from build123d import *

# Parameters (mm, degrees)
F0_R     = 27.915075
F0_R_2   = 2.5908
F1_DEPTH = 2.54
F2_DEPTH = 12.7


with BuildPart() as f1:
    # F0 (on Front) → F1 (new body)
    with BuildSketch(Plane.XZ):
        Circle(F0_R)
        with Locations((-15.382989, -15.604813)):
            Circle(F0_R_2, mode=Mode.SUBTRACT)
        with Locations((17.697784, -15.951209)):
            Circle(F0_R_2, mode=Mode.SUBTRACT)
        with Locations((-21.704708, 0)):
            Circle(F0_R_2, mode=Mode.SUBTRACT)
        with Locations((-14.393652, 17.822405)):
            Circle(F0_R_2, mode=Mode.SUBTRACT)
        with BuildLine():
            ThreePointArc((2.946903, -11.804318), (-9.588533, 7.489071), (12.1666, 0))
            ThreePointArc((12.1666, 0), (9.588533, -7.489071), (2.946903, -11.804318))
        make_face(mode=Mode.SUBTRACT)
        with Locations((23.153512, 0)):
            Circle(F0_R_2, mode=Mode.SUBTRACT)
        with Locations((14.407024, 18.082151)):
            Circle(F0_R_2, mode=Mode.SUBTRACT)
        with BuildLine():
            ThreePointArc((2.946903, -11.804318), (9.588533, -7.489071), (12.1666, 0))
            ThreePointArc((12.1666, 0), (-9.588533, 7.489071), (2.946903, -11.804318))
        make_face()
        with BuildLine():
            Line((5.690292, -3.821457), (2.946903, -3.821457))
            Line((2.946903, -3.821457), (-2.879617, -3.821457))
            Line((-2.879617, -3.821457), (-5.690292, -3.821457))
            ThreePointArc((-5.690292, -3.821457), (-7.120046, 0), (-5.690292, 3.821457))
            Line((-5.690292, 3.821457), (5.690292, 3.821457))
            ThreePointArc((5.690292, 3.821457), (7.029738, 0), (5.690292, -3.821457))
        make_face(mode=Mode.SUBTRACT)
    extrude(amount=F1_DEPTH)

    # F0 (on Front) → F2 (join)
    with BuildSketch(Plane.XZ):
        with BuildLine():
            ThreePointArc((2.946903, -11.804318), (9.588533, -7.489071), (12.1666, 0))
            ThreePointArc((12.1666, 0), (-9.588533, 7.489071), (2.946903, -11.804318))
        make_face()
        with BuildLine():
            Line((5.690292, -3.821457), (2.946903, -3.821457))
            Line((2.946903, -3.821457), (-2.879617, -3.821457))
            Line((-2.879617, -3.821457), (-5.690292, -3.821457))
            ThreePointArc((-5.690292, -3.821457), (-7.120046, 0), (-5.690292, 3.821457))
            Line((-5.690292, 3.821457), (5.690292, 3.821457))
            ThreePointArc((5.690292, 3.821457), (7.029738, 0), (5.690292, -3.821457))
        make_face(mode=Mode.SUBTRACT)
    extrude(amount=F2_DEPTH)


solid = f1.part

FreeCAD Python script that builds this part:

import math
import FreeCAD as App
import Part
import Sketcher
Q = App.Units.Quantity

doc = App.newDocument("Part")
body = doc.addObject("PartDesign::Body", "Body")

# Sketch on XZ plane
sketch1 = doc.addObject("Sketcher::SketchObject", "Sketch")
body.addObject(sketch1)
sketch1.AttachmentSupport = (doc.XZ_Plane, [""])
sketch1.MapMode = "FlatFace"
sketch1.addGeometry(Part.Circle(App.Vector(0, 0, 0), App.Vector(0, 0, 1), 27.9), False)
sketch1.addGeometry(Part.Circle(App.Vector(-15.4, -15.6, 0), App.Vector(0, 0, 1), 2.6), False)
sketch1.addGeometry(Part.Circle(App.Vector(-21.7, 0, 0), App.Vector(0, 0, 1), 2.6), False)
sketch1.addGeometry(Part.ArcOfCircle(Part.Circle(App.Vector(0.9, 0, 0), App.Vector(0, 0, 1), 6.1), math.radians(-39), math.radians(39)), False)
sketch1.addGeometry(Part.LineSegment(App.Vector(5.7, -3.8, 0), App.Vector(-5.7, -3.8, 0)), False)
sketch1.addGeometry(Part.ArcOfCircle(Part.Circle(App.Vector(-1.3, 0, 0), App.Vector(0, 0, 1), 5.8), math.radians(139), math.radians(221)), False)
sketch1.addGeometry(Part.LineSegment(App.Vector(-5.7, 3.8, 0), App.Vector(5.7, 3.8, 0)), False)
sketch1.addGeometry(Part.Circle(App.Vector(17.7, -16, 0), App.Vector(0, 0, 1), 2.6), False)
sketch1.addGeometry(Part.Circle(App.Vector(23.2, 0, 0), App.Vector(0, 0, 1), 2.6), False)
sketch1.addGeometry(Part.Circle(App.Vector(-14.4, 17.8, 0), App.Vector(0, 0, 1), 2.6), False)
sketch1.addGeometry(Part.Circle(App.Vector(14.4, 18.1, 0), App.Vector(0, 0, 1), 2.6), False)
sketch1.addConstraint(Sketcher.Constraint("Coincident", 3, 1, 4, 1))
sketch1.addConstraint(Sketcher.Constraint("Coincident", 4, 2, 5, 2))
sketch1.addConstraint(Sketcher.Constraint("Coincident", 5, 1, 6, 1))
sketch1.addConstraint(Sketcher.Constraint("Coincident", 6, 2, 3, 2))
sketch1.addConstraint(Sketcher.Constraint("Horizontal", 4))
sketch1.addConstraint(Sketcher.Constraint("Horizontal", 6))
sketch1.addConstraint(Sketcher.Constraint("Coincident", 0, 3, -1, 1))
sketch1.addConstraint(Sketcher.Constraint("Equal", 1, 2))
sketch1.addConstraint(Sketcher.Constraint("Equal", 2, 7))
sketch1.addConstraint(Sketcher.Constraint("Equal", 7, 8))
sketch1.addConstraint(Sketcher.Constraint("Equal", 8, 9))
sketch1.addConstraint(Sketcher.Constraint("Equal", 9, 10))
sketch1.addConstraint(Sketcher.Constraint("Symmetric", 3, 1, 5, 1, -1, 1))
sketch1.addConstraint(Sketcher.Constraint("PointOnObject", 2, 3, -1))
sketch1.addConstraint(Sketcher.Constraint("PointOnObject", 3, 3, -1))
sketch1.addConstraint(Sketcher.Constraint("PointOnObject", 5, 3, -1))
sketch1.addConstraint(Sketcher.Constraint("PointOnObject", 8, 3, -1))
sketch1.addConstraint(Sketcher.Constraint("Diameter", 1, Q("0.204 in")))
sketch1.addConstraint(Sketcher.Constraint("Diameter", 0, Q("55.83015 mm")))
sketch1.addConstraint(Sketcher.Constraint("Radius", 3, Q("6.121056 mm")))
sketch1.addConstraint(Sketcher.Constraint("Radius", 5, Q("5.821886 mm")))
sketch1.addConstraint(Sketcher.Constraint("DistanceX", 1, 3, 8, 3, Q("38.536501 mm")))
sketch1.addConstraint(Sketcher.Constraint("DistanceX", 4, 2, 4, 1, Q("11.380584 mm")))
sketch1.addConstraint(Sketcher.Constraint("DistanceX", 1, 3, -1, 1, Q("15.382989 mm")))
sketch1.addConstraint(Sketcher.Constraint("DistanceX", 2, 3, -1, 1, Q("21.704708 mm")))
sketch1.addConstraint(Sketcher.Constraint("DistanceX", -1, 1, 3, 3, Q("0.908682 mm")))
sketch1.addConstraint(Sketcher.Constraint("DistanceY", 7, 3, -1, 1, Q("15.951209 mm")))
sketch1.addConstraint(Sketcher.Constraint("DistanceY", -1, 1, 10, 3, Q("18.082151 mm")))
sketch1.addConstraint(Sketcher.Constraint("DistanceX", 2, 3, 7, 3, Q("39.402492 mm")))
sketch1.addConstraint(Sketcher.Constraint("DistanceY", 1, 3, -1, 1, Q("15.604813 mm")))
sketch1.addConstraint(Sketcher.Constraint("DistanceX", 9, 3, -1, 1, Q("14.393652 mm")))
sketch1.addConstraint(Sketcher.Constraint("DistanceY", -1, 1, 9, 3, Q("17.822405 mm")))
sketch1.addConstraint(Sketcher.Constraint("DistanceX", -1, 1, 10, 3, Q("14.407024 mm")))
pad1 = doc.addObject("PartDesign::Pad", "Pad")
body.addObject(pad1)
pad1.Profile = sketch1
pad1.Length = Q("0.1 in")

# Sketch on XZ plane
sketch2 = doc.addObject("Sketcher::SketchObject", "Sketch001")
body.addObject(sketch2)
sketch2.AttachmentSupport = (doc.XZ_Plane, [""])
sketch2.MapMode = "FlatFace"
sketch2.addGeometry(Part.ArcOfCircle(Part.Circle(App.Vector(0, 0, 0), App.Vector(0, 0, 1), 12), math.radians(-76), math.radians(0)), False)
sketch2.addGeometry(Part.ArcOfCircle(Part.Circle(App.Vector(0, 0, 0), App.Vector(0, 0, 1), 12), math.radians(0), math.radians(284)), False)
sketch2.addGeometry(Part.ArcOfCircle(Part.Circle(App.Vector(1, 0, 0), App.Vector(0, 0, 1), 6), math.radians(-39), math.radians(39)), False)
sketch2.addGeometry(Part.LineSegment(App.Vector(6, -4, 0), App.Vector(-6, -4, 0)), False)
sketch2.addGeometry(Part.ArcOfCircle(Part.Circle(App.Vector(-1, 0, 0), App.Vector(0, 0, 1), 6), math.radians(139), math.radians(221)), False)
sketch2.addGeometry(Part.LineSegment(App.Vector(-6, 4, 0), App.Vector(6, 4, 0)), False)
sketch2.addConstraint(Sketcher.Constraint("Tangent", 0, 1, 1, 2))
sketch2.addConstraint(Sketcher.Constraint("Coincident", 1, 1, 0, 2))
sketch2.addConstraint(Sketcher.Constraint("Coincident", 2, 1, 3, 1))
sketch2.addConstraint(Sketcher.Constraint("Coincident", 3, 2, 4, 2))
sketch2.addConstraint(Sketcher.Constraint("Coincident", 4, 1, 5, 1))
sketch2.addConstraint(Sketcher.Constraint("Coincident", 5, 2, 2, 2))
sketch2.addConstraint(Sketcher.Constraint("Horizontal", 3))
sketch2.addConstraint(Sketcher.Constraint("Horizontal", 5))
sketch2.addConstraint(Sketcher.Constraint("Coincident", 0, 3, -1, 1))
sketch2.addConstraint(Sketcher.Constraint("Symmetric", 2, 1, 4, 1, -1, 1))
sketch2.addConstraint(Sketcher.Constraint("PointOnObject", 2, 3, -1))
sketch2.addConstraint(Sketcher.Constraint("PointOnObject", 4, 3, -1))
sketch2.addConstraint(Sketcher.Constraint("PointOnObject", 1, 1, -1))
sketch2.addConstraint(Sketcher.Constraint("Radius", 0, Q("0.4790001 in")))
sketch2.addConstraint(Sketcher.Constraint("Radius", 2, Q("6.121056 mm")))
sketch2.addConstraint(Sketcher.Constraint("Radius", 4, Q("5.821886 mm")))
sketch2.addConstraint(Sketcher.Constraint("DistanceX", 3, 2, 3, 1, Q("11.380584 mm")))
sketch2.addConstraint(Sketcher.Constraint("DistanceX", -1, 1, 2, 3, Q("0.908682 mm")))
sketch2.addConstraint(Sketcher.Constraint("DistanceY", 0, 1, -1, 1, Q("11.804318 mm")))
pad2 = doc.addObject("PartDesign::Pad", "Pad001")
body.addObject(pad2)
pad2.Profile = sketch2
pad2.Length = Q("0.5 in")

doc.recompute()
